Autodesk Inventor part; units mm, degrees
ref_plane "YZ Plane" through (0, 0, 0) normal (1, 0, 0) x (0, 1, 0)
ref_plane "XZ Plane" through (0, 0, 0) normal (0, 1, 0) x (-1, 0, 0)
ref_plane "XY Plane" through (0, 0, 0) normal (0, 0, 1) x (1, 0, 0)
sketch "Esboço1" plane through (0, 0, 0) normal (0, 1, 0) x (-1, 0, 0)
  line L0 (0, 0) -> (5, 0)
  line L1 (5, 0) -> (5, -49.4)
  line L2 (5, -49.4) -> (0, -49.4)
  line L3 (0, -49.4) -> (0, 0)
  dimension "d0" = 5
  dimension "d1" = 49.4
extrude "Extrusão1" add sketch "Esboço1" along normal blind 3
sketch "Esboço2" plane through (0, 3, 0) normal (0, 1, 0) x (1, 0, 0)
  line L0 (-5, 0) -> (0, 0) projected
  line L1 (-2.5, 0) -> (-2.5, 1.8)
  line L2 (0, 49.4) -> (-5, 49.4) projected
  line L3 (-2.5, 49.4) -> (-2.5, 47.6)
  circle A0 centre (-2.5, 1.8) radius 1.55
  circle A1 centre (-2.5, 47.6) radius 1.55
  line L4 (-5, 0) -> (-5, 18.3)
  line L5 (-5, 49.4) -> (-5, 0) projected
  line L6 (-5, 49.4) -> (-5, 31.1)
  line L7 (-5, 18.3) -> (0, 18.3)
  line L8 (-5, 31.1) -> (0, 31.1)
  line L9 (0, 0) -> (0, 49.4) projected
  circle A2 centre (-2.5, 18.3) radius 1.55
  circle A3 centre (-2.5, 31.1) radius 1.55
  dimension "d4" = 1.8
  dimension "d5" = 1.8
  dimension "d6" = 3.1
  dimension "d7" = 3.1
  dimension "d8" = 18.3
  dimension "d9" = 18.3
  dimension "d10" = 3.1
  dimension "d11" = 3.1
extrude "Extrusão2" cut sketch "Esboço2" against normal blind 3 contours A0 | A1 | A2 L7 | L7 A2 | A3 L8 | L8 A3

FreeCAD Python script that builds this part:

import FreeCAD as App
import Part
import Sketcher

doc = App.newDocument("Part")
body = doc.addObject("PartDesign::Body", "Body")

# Sketch on XZ plane
sketch1 = doc.addObject("Sketcher::SketchObject", "Sketch")
body.addObject(sketch1)
sketch1.AttachmentSupport = (doc.XZ_Plane, [""])
sketch1.MapMode = "FlatFace"
sketch1.addGeometry([
    Part.LineSegment(App.Vector(-5, 0, 0), App.Vector(0, 0, 0)),
    Part.LineSegment(App.Vector(0, 0, 0), App.Vector(0, -49, 0)),
    Part.LineSegment(App.Vector(0, -49, 0), App.Vector(-5, -49, 0)),
    Part.LineSegment(App.Vector(-5, -49, 0), App.Vector(-5, 0, 0)),
], False)
sketch1.addConstraint([
    Sketcher.Constraint("Coincident", 0, 2, 1, 1),
    Sketcher.Constraint("Coincident", 1, 2, 2, 1),
    Sketcher.Constraint("Coincident", 2, 2, 3, 1),
    Sketcher.Constraint("Coincident", 3, 2, 0, 1),
    Sketcher.Constraint("Horizontal", 0),
    Sketcher.Constraint("Vertical", 1),
    Sketcher.Constraint("Horizontal", 2),
    Sketcher.Constraint("Vertical", 3),
    Sketcher.Constraint("Coincident", 0, 2, -1, 1),
    Sketcher.Constraint("DistanceX", 0, 1, 0, 2, 5.0),
    Sketcher.Constraint("DistanceY", 1, 2, 1, 1, 49.4),
])
pad1 = doc.addObject("PartDesign::Pad", "Pad")
body.addObject(pad1)
pad1.Profile = sketch1
pad1.Length = 3
pad1.Reversed = True

# Sketch on XZ plane
sketch2 = doc.addObject("Sketcher::SketchObject", "Sketch001")
body.addObject(sketch2)
sketch2.AttachmentSupport = (doc.XZ_Plane, [""])
sketch2.MapMode = "FlatFace"
sketch2.AttachmentOffset = App.Placement(App.Vector(0, 0, -3), App.Rotation())
sketch2.addGeometry([
    Part.Circle(App.Vector(-2.5, -1.8, 0), App.Vector(0, 0, 1), 1.6),
    Part.Circle(App.Vector(-2.5, -47.6, 0), App.Vector(0, 0, 1), 1.6),
    Part.Circle(App.Vector(-2.5, -18.3, 0), App.Vector(0, 0, 1), 1.6),
    Part.Circle(App.Vector(-2.5, -31.1, 0), App.Vector(0, 0, 1), 1.6),
], False)
sketch2.addConstraint([
    Sketcher.Constraint("Equal", 0, 1),
    Sketcher.Constraint("Equal", 1, 2),
    Sketcher.Constraint("Equal", 2, 3),
    Sketcher.Constraint("Vertical", 0, 3, 1, 3),
    Sketcher.Constraint("Vertical", 1, 3, 2, 3),
    Sketcher.Constraint("Vertical", 2, 3, 3, 3),
    Sketcher.Constraint("Diameter", 0, 3.1),
    Sketcher.Constraint("DistanceY", 0, 3, -1, 1, 1.8),
    Sketcher.Constraint("DistanceY", 2, 3, -1, 1, 18.3),
    Sketcher.Constraint("DistanceX", 0, 3, -1, 1, 2.5),
    Sketcher.Constraint("DistanceY", 1, 3, -1, 1, 47.6),
    Sketcher.Constraint("DistanceY", 3, 3, -1, 1, 31.1),
])
pocket1 = doc.addObject("PartDesign::Pocket", "Pocket")
body.addObject(pocket1)
pocket1.Profile = sketch2
pocket1.Length = 3
pocket1.Reversed = True

doc.recompute()
